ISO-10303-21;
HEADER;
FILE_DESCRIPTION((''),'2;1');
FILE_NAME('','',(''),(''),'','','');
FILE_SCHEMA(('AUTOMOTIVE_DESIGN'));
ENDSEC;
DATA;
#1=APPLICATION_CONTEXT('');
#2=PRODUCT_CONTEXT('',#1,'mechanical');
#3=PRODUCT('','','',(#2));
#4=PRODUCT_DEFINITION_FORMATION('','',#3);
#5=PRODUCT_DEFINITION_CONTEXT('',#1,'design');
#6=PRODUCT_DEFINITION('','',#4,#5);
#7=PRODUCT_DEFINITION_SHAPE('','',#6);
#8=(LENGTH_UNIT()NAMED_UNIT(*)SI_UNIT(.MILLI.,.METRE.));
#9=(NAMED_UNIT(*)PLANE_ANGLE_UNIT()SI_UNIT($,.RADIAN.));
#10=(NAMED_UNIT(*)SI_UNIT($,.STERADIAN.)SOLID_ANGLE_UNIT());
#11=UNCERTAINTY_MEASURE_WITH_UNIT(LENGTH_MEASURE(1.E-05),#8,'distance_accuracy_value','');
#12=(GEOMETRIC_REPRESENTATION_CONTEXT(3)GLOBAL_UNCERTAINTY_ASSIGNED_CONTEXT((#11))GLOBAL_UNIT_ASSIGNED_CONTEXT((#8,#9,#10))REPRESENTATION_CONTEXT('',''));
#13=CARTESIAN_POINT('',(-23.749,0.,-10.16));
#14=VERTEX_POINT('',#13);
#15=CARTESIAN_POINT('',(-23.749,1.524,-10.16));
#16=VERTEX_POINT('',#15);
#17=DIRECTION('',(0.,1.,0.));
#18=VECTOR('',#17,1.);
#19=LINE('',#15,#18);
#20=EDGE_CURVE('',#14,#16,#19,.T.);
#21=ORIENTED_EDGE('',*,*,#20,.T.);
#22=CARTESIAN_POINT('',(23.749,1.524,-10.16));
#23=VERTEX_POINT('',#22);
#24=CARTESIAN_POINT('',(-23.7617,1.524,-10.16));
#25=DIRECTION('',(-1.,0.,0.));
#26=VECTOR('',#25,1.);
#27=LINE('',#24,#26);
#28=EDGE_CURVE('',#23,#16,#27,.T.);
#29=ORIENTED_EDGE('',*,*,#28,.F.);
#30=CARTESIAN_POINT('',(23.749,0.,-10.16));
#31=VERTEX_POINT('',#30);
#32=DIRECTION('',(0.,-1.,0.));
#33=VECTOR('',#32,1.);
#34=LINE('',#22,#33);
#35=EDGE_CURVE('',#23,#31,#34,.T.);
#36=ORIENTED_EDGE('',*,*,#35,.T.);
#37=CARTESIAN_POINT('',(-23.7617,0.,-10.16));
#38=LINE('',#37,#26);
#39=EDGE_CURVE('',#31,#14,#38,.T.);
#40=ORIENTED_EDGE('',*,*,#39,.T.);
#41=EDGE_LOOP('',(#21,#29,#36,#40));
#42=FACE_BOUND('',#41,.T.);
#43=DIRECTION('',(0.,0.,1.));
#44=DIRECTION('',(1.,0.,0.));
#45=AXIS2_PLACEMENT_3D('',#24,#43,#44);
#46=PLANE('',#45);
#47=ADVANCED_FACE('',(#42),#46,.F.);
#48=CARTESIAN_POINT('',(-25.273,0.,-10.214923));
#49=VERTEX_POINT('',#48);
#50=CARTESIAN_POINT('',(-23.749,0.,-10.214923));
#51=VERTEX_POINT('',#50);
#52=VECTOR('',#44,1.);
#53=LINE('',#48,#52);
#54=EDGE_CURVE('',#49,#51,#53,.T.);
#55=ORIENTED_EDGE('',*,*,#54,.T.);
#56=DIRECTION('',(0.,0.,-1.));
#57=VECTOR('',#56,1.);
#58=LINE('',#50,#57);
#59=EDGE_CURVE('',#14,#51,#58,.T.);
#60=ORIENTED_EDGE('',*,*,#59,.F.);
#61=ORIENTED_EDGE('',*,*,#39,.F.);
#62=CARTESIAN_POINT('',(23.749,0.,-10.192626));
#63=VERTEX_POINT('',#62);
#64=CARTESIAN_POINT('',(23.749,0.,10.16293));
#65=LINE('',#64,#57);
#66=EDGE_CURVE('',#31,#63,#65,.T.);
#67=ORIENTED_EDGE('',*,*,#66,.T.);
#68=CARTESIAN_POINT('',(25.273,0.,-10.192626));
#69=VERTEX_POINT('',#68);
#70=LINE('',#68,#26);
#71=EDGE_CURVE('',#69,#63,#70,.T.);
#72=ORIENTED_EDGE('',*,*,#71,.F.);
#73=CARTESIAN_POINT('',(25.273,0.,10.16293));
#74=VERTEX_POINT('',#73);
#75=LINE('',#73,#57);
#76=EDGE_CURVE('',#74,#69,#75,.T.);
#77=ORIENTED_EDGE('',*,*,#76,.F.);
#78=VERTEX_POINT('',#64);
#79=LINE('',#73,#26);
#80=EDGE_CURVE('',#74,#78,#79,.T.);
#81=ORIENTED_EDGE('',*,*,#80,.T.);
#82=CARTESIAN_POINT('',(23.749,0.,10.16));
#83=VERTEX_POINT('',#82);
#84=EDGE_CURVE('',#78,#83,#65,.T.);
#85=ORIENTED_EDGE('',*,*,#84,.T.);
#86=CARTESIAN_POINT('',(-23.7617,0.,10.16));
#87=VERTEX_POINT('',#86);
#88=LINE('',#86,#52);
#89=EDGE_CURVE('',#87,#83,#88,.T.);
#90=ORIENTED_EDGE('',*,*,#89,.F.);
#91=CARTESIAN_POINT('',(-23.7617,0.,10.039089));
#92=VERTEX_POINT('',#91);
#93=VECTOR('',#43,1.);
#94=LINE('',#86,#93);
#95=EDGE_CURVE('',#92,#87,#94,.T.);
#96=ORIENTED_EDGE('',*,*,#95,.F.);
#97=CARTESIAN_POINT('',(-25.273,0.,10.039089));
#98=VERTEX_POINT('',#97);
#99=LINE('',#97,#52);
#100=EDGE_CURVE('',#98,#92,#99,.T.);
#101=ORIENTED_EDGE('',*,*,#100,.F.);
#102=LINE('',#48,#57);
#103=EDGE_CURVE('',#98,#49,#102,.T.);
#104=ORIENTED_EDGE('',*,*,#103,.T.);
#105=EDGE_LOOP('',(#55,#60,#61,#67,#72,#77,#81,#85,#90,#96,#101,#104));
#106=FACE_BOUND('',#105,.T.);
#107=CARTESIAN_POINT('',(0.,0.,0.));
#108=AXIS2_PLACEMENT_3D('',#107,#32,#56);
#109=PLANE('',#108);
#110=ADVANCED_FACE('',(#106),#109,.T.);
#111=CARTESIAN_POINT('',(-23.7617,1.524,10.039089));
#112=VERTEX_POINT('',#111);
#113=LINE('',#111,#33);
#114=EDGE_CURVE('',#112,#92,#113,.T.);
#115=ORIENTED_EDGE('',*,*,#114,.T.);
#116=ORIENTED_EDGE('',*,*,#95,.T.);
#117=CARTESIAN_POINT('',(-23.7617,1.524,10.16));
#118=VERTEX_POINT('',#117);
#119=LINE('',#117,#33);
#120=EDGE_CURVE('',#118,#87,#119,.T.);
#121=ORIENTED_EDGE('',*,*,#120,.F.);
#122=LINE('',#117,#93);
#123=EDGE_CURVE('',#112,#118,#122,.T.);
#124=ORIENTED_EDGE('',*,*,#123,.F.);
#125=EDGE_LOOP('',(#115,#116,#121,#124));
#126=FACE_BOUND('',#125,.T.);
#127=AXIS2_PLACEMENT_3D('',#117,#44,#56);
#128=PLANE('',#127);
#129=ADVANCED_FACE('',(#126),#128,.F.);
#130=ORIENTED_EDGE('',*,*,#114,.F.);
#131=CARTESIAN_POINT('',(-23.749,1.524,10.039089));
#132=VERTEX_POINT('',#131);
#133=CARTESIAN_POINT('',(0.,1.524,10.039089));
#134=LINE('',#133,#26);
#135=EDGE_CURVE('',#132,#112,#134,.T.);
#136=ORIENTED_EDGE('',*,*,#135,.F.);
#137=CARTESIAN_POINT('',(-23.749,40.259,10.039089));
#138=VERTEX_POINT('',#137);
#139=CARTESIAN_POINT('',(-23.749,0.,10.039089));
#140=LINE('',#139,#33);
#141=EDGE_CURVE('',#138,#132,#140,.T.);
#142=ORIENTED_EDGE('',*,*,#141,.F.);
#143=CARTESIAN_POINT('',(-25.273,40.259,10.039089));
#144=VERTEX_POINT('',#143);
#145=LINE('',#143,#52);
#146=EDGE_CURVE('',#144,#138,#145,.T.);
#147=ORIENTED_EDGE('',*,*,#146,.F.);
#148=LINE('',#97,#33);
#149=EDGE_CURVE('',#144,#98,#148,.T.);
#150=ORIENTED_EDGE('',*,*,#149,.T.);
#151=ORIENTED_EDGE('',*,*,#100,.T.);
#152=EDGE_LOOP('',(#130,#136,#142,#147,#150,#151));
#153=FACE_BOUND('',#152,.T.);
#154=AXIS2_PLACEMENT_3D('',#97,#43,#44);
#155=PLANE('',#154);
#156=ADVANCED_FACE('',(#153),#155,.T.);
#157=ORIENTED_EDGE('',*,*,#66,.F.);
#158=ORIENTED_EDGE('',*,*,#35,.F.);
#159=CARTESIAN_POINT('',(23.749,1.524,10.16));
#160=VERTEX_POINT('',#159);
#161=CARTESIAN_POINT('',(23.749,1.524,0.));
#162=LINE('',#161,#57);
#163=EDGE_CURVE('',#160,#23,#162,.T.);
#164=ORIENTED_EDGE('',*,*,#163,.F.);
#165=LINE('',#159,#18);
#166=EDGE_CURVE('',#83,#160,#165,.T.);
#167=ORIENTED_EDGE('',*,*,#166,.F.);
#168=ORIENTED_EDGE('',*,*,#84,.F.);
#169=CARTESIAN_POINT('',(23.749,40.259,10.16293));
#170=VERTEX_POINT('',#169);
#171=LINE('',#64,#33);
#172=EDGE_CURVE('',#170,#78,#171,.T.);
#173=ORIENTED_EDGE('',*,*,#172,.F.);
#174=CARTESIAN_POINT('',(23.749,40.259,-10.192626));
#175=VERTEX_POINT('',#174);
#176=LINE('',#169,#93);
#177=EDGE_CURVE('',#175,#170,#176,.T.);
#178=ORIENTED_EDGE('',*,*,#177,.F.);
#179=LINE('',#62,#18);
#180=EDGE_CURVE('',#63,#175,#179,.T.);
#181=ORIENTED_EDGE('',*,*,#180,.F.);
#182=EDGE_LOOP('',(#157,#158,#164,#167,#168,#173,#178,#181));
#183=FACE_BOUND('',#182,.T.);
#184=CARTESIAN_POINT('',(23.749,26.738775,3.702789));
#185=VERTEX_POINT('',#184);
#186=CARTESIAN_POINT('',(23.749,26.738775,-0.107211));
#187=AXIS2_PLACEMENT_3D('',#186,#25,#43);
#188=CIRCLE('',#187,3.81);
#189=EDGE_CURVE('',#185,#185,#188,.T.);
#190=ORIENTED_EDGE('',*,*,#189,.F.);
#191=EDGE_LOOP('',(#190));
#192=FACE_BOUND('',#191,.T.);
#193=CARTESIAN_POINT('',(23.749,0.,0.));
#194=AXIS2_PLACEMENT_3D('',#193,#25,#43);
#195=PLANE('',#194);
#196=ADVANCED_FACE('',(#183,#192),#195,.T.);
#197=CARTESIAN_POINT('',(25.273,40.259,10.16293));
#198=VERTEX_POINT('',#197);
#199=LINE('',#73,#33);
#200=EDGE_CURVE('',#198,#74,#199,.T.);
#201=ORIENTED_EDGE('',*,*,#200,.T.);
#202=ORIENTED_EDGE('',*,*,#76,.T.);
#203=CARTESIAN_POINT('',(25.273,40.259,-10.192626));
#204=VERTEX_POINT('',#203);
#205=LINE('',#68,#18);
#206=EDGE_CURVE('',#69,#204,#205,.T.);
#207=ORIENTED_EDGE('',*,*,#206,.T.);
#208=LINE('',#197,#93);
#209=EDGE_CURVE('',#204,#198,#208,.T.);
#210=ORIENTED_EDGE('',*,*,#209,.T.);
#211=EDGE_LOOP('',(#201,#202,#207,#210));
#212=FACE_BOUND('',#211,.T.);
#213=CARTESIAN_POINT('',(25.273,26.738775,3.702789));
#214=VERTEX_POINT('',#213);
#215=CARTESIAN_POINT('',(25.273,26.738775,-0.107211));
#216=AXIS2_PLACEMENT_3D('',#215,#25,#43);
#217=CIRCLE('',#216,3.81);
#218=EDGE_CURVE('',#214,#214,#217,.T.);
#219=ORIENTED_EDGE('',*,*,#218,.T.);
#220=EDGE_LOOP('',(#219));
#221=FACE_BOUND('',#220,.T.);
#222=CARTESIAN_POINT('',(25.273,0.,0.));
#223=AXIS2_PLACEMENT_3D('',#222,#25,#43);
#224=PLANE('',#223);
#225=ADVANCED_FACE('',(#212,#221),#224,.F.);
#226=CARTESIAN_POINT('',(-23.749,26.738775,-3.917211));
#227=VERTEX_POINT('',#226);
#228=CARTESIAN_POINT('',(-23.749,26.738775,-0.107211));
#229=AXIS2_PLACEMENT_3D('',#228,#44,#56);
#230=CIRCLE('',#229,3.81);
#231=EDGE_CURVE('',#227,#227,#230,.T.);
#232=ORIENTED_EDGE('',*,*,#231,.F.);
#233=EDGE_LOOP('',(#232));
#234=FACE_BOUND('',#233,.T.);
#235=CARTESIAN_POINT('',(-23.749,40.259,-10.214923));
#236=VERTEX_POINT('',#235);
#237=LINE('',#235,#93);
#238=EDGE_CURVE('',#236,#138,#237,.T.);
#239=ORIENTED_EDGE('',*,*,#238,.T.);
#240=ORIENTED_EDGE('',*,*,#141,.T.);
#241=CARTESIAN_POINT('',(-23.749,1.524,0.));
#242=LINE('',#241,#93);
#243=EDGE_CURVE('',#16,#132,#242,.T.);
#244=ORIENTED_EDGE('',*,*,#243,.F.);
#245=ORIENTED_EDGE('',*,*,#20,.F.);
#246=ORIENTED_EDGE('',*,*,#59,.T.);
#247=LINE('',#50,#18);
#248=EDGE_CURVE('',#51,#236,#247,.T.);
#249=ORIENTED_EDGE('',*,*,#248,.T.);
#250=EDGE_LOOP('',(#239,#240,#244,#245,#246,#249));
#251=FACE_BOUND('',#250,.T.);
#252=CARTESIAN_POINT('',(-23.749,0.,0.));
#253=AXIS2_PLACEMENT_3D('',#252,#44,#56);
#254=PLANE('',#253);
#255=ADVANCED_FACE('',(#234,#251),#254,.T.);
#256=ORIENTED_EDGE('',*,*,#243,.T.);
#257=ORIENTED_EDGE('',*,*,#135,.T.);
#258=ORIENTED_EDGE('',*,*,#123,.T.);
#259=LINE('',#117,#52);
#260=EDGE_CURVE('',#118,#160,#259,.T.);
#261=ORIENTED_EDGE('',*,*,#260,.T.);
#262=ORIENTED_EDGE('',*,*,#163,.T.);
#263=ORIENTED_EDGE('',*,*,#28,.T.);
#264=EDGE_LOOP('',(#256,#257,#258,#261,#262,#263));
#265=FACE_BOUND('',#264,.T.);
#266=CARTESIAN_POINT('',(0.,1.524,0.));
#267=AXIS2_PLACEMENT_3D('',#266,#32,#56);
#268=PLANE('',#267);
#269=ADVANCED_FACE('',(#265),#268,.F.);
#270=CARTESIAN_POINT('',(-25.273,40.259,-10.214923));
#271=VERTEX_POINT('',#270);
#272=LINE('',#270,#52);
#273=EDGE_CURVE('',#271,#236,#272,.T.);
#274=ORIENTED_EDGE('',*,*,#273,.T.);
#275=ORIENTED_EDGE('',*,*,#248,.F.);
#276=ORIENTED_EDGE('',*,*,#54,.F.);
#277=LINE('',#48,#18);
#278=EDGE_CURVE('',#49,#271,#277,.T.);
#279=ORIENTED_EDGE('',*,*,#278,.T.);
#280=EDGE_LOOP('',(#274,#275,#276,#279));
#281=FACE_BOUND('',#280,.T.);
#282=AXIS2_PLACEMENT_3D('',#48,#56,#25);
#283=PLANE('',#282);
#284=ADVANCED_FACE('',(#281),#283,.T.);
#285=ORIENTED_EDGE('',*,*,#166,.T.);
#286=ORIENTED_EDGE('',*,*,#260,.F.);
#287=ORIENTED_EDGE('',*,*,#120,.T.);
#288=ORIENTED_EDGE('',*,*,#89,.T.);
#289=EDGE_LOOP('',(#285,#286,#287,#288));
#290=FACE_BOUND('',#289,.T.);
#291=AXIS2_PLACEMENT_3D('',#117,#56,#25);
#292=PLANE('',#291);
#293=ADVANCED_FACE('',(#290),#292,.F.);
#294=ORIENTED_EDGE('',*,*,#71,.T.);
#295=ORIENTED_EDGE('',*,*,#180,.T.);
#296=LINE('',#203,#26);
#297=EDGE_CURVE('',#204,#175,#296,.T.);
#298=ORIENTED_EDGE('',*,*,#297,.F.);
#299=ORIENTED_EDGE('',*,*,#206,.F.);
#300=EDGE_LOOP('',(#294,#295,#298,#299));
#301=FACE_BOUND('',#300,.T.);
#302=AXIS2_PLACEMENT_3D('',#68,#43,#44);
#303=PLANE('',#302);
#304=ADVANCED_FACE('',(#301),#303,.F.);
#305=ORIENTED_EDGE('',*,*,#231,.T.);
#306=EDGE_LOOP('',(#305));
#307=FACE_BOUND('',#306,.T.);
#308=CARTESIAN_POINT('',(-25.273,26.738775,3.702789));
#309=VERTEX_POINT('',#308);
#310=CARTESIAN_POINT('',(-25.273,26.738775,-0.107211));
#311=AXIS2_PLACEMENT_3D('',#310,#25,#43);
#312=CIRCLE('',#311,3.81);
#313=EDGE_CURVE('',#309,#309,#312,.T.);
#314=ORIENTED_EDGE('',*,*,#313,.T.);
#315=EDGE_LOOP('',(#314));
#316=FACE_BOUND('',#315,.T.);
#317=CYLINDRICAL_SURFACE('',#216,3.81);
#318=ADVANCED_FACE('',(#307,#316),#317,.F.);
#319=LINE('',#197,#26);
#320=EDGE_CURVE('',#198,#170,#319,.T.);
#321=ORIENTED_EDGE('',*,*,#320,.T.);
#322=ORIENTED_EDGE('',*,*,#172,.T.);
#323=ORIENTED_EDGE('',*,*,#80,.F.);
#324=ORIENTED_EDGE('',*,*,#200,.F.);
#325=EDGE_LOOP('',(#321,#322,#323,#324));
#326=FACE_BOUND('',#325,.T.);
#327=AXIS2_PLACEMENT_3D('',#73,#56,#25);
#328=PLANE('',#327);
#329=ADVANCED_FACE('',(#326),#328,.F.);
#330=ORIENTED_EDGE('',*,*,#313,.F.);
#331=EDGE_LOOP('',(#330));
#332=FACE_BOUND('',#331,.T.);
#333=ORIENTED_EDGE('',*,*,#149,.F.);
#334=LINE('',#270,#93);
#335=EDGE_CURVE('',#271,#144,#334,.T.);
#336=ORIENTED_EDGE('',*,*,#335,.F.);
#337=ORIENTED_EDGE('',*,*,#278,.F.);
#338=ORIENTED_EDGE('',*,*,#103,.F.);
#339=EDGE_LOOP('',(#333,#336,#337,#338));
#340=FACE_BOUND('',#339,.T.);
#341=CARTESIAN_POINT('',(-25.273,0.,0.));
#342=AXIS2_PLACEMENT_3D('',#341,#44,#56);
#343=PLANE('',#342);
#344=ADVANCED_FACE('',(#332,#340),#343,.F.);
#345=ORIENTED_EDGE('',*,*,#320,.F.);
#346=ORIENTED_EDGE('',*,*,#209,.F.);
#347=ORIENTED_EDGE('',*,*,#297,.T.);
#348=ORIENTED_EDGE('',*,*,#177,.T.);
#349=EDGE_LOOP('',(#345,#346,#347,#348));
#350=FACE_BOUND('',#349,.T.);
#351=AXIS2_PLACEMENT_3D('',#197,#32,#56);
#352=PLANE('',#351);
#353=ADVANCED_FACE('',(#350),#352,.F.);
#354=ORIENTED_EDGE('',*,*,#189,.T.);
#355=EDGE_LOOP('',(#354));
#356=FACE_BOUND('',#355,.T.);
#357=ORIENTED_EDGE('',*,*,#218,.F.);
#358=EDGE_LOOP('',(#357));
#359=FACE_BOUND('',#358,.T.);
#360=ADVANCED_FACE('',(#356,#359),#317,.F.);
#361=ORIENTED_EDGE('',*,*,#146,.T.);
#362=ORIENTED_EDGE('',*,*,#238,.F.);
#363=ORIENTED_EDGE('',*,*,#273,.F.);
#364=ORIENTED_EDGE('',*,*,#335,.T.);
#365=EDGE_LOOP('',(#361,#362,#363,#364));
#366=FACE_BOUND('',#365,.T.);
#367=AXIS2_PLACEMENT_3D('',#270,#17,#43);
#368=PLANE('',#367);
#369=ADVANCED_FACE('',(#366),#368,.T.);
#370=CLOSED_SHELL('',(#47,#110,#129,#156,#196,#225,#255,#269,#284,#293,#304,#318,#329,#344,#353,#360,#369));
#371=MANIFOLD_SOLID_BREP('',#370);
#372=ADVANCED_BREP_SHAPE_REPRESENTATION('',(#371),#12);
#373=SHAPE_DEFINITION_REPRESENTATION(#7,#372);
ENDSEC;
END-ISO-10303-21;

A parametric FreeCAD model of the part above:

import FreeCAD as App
import Part
import Sketcher
from FreeCAD import Vector
Q = App.Units.Quantity

doc = App.newDocument("Part")
body = doc.addObject("PartDesign::Body", "Body")

sketch1 = body.newObject("Sketcher::SketchObject", "Sketch")
sketch1.AttachmentSupport = (doc.getObject("XZ_Plane"), [""])
sketch1.MapMode = "FlatFace"
sketch1.addGeometry([
    Part.LineSegment(Vector(-24, -10, 0), Vector(-24, 10, 0)),
    Part.LineSegment(Vector(-24, 10, 0), Vector(24, 10, 0)),
    Part.LineSegment(Vector(24, 10, 0), Vector(24, -10, 0)),
    Part.LineSegment(Vector(24, -10, 0), Vector(-24, -10, 0)),
], False)
sketch1.addConstraint([
    Sketcher.Constraint("Coincident", 0, 2, 1, 1),
    Sketcher.Constraint("Coincident", 1, 2, 2, 1),
    Sketcher.Constraint("Coincident", 2, 2, 3, 1),
    Sketcher.Constraint("Coincident", 3, 2, 0, 1),
    Sketcher.Constraint("Vertical", 0),
    Sketcher.Constraint("Horizontal", 1),
    Sketcher.Constraint("Vertical", 2),
    Sketcher.Constraint("Horizontal", 3),
    Sketcher.Constraint("Symmetric", 0, 2, 2, 2, -1, 1),
    Sketcher.Constraint("DistanceY", 0, 1, 0, 2, Q("0.8 in")),
    Sketcher.Constraint("DistanceX", 1, 1, 1, 2, Q("1.871 in")),
])
pad1 = body.newObject("PartDesign::Pad", "Pad")
pad1.Profile = sketch1
pad1.Length = Q("0.06 in")
pad1.Reversed = True

sketch2 = body.newObject("Sketcher::SketchObject", "Sketch001")
sketch2.AttachmentSupport = (doc.getObject("YZ_Plane"), [""])
sketch2.MapMode = "FlatFace"
sketch2.AttachmentOffset = App.Placement(Vector(0, 0, -0.935 * 25.4), App.Rotation())
sketch2.addGeometry([
    Part.LineSegment(Vector(40, 10, 0), Vector(0, 10, 0)),
    Part.LineSegment(Vector(0, 10, 0), Vector(0, -10, 0)),
    Part.LineSegment(Vector(0, -10, 0), Vector(40, -10, 0)),
    Part.LineSegment(Vector(40, -10, 0), Vector(40, 10, 0)),
], False)
sketch2.addConstraint([
    Sketcher.Constraint("Coincident", 0, 2, 1, 1),
    Sketcher.Constraint("Coincident", 1, 2, 2, 1),
    Sketcher.Constraint("Coincident", 2, 2, 3, 1),
    Sketcher.Constraint("Coincident", 3, 2, 0, 1),
    Sketcher.Constraint("Horizontal", 0),
    Sketcher.Constraint("Vertical", 1),
    Sketcher.Constraint("Horizontal", 2),
    Sketcher.Constraint("Vertical", 3),
    Sketcher.Constraint("PointOnObject", 0, 2, -2),
    Sketcher.Constraint("DistanceX", 0, 2, 0, 1, Q("1.585 in")),
    Sketcher.Constraint("DistanceY", 1, 2, 1, 1, Q("20.254011 mm")),
    Sketcher.Constraint("DistanceY", -1, 1, 0, 2, Q("10.039089 mm")),
])
pad2 = body.newObject("PartDesign::Pad", "Pad001")
pad2.Profile = sketch2
pad2.Length = Q("0.06 in")
pad2.Reversed = True

sketch3 = body.newObject("Sketcher::SketchObject", "Sketch002")
sketch3.AttachmentSupport = (doc.getObject("YZ_Plane"), [""])
sketch3.MapMode = "FlatFace"
sketch3.AttachmentOffset = App.Placement(Vector(0, 0, 0.935 * 25.4), App.Rotation())
sketch3.addGeometry([
    Part.LineSegment(Vector(40, 10, 0), Vector(0, 10, 0)),
    Part.LineSegment(Vector(0, 10, 0), Vector(0, -10, 0)),
    Part.LineSegment(Vector(0, -10, 0), Vector(40, -10, 0)),
    Part.LineSegment(Vector(40, -10, 0), Vector(40, 10, 0)),
], False)
sketch3.addConstraint([
    Sketcher.Constraint("Coincident", 0, 2, 1, 1),
    Sketcher.Constraint("Coincident", 1, 2, 2, 1),
    Sketcher.Constraint("Coincident", 2, 2, 3, 1),
    Sketcher.Constraint("Coincident", 3, 2, 0, 1),
    Sketcher.Constraint("Horizontal", 0),
    Sketcher.Constraint("Vertical", 1),
    Sketcher.Constraint("Horizontal", 2),
    Sketcher.Constraint("Vertical", 3),
    Sketcher.Constraint("PointOnObject", 0, 2, -2),
    Sketcher.Constraint("DistanceX", 0, 2, 0, 1, Q("1.585 in")),
    Sketcher.Constraint("DistanceY", 1, 2, 1, 1, Q("0.8013998 in")),
    Sketcher.Constraint("DistanceY", -1, 1, 0, 2, Q("10.16293 mm")),
])
pad3 = body.newObject("PartDesign::Pad", "Pad002")
pad3.Profile = sketch3
pad3.Length = Q("0.06 in")

sketch4 = body.newObject("Sketcher::SketchObject", "Sketch003")
sketch4.AttachmentSupport = (doc.getObject("YZ_Plane"), [""])
sketch4.MapMode = "FlatFace"
sketch4.AttachmentOffset = App.Placement(Vector(0, 0, -0.995 * 25.4), App.Rotation())
sketch4.addGeometry(Part.Circle(Vector(26.7, -0.1, 0), Vector(0, 0, 1), 3.8), False)
sketch4.addConstraint([
    Sketcher.Constraint("Diameter", 0, Q("0.3 in")),
    Sketcher.Constraint("DistanceY", 0, 3, -1, 1, Q("0.107211 mm")),
    Sketcher.Constraint("DistanceX", -1, 1, 0, 3, Q("26.738775 mm")),
])
pocket1 = body.newObject("PartDesign::Pocket", "Pocket")
pocket1.Profile = sketch4
pocket1.Type = "ThroughAll"
pocket1.Reversed = True

doc.recompute()
